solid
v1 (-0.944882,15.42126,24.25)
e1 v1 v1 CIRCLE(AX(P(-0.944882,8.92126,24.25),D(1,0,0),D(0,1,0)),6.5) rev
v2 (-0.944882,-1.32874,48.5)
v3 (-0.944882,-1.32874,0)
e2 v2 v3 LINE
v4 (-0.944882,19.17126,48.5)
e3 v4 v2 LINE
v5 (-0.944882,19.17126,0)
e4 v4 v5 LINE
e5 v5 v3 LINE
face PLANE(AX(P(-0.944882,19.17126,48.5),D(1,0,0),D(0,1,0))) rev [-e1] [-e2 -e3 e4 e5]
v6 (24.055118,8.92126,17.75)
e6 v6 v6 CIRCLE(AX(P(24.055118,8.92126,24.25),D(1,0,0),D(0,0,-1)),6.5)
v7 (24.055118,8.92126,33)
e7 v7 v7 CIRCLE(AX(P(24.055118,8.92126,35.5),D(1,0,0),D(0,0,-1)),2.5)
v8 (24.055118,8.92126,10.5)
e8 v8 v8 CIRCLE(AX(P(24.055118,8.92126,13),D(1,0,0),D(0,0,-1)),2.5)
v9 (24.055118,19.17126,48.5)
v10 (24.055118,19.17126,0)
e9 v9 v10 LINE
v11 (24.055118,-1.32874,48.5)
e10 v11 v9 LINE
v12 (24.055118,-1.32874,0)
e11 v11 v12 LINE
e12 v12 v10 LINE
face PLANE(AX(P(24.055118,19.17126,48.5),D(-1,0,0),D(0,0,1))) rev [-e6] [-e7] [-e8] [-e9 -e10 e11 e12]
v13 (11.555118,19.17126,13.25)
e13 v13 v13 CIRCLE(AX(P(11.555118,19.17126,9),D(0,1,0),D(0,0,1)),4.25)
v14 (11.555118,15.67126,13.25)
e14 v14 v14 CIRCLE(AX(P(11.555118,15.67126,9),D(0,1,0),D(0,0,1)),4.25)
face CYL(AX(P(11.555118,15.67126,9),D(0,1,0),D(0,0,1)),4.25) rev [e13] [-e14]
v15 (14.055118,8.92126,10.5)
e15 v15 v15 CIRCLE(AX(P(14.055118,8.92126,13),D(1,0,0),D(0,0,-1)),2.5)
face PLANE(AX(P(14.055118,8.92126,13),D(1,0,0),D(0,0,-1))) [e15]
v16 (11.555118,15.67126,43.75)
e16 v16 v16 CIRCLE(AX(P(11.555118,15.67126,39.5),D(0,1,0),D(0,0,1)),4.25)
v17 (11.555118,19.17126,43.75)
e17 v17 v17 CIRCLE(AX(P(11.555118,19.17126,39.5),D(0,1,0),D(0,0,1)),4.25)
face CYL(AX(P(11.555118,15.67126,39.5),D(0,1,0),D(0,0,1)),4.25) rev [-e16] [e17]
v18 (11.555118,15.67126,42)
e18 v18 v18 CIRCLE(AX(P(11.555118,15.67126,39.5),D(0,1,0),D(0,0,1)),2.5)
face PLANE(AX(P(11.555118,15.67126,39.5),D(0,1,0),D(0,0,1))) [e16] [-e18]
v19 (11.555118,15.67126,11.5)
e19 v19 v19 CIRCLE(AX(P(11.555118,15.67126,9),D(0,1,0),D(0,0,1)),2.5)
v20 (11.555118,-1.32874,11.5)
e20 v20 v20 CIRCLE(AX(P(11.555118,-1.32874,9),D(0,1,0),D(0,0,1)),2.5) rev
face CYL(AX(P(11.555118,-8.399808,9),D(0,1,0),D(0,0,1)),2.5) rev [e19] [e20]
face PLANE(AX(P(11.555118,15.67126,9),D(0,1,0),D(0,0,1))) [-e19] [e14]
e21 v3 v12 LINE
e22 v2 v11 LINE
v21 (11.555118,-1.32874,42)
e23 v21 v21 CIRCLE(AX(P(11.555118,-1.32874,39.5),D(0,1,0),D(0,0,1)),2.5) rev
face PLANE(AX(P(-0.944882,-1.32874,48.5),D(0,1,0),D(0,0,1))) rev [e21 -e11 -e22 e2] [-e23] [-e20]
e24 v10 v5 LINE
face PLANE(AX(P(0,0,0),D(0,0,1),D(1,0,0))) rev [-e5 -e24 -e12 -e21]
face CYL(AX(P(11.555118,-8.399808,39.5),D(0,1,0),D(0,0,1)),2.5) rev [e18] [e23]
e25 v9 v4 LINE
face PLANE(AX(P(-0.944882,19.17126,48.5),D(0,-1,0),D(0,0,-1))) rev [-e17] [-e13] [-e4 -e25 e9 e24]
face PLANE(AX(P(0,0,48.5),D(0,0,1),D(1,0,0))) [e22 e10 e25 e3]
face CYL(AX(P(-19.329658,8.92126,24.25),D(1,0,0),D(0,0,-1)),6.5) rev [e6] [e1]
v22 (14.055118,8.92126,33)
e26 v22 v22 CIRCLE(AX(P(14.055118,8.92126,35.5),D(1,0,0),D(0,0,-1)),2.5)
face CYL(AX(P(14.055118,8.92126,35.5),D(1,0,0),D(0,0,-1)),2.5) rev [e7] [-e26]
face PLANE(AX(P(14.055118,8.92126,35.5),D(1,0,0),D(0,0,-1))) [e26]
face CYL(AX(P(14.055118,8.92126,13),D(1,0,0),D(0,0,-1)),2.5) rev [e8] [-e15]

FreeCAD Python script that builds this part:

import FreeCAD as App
import Part
import Sketcher

V = App.Vector
Q = App.Units.Quantity


def add_polygon(sketch, points):
    """Adds a closed chain of lines whose ends are joined by coincident constraints."""
    first, n = sketch.GeometryCount, len(points)
    for a, b in zip(points, points[1:] + points[:1]):
        sketch.addGeometry(Part.LineSegment(App.Vector(*a, 0), App.Vector(*b, 0)), False)
    for i in range(n):
        sketch.addConstraint(Sketcher.Constraint("Coincident", first + i, 2, first + (i + 1) % n, 1))

doc = App.newDocument("Part")
body = doc.addObject("PartDesign::Body", "Body")

sketch1 = doc.addObject("Sketcher::SketchObject", "Sketch")
body.addObject(sketch1)
sketch1.AttachmentSupport = (doc.XY_Plane, [""])
sketch1.MapMode = "FlatFace"
add_polygon(sketch1, [(-1, 19), (-1, -1), (24, -1), (24, 19)])
sketch1.addConstraint([
    Sketcher.Constraint("Vertical", 0),
    Sketcher.Constraint("Horizontal", 1),
    Sketcher.Constraint("Vertical", 2),
    Sketcher.Constraint("Horizontal", 3),
    Sketcher.Constraint("DistanceX", 1, 1, 1, 2, Q("25 mm")),
    Sketcher.Constraint("DistanceY", 0, 2, 0, 1, Q("20.5 mm")),
    Sketcher.Constraint("DistanceX", 0, 2, -1, 1, Q("0.944882 mm")),
    Sketcher.Constraint("DistanceY", 0, 2, -1, 1, Q("1.32874 mm")),
])
pad1 = doc.addObject("PartDesign::Pad", "Pad")
body.addObject(pad1)
pad1.Profile = sketch1
pad1.Length = 48.5

sketch2 = doc.addObject("Sketcher::SketchObject", "Sketch001")
body.addObject(sketch2)
sketch2.AttachmentSupport = (doc.XZ_Plane, [""])
sketch2.MapMode = "FlatFace"
sketch2.AttachmentOffset = App.Placement(V(0, 0, -19.17126), App.Rotation())
sketch2.addGeometry([
    Part.Circle(V(11.6, 39.5, 0), V(0, 0, 1), 4.2),
    Part.Circle(V(11.6, 9, 0), V(0, 0, 1), 4.2),
], False)
sketch2.addConstraint([
    Sketcher.Constraint("Equal", 0, 1),
    Sketcher.Constraint("Vertical", 0, 3, 1, 3),
    Sketcher.Constraint("Diameter", 0, Q("8.5 mm")),
    Sketcher.Constraint("DistanceY", -1, 1, 1, 3, Q("9 mm")),
    Sketcher.Constraint("DistanceY", -1, 1, 0, 3, Q("39.5 mm")),
    Sketcher.Constraint("DistanceX", -1, 1, 0, 3, Q("11.555118 mm")),
])
pocket1 = doc.addObject("PartDesign::Pocket", "Pocket")
body.addObject(pocket1)
pocket1.Profile = sketch2
pocket1.Length = 3.5
pocket1.Reversed = True

sketch3 = doc.addObject("Sketcher::SketchObject", "Sketch002")
body.addObject(sketch3)
sketch3.AttachmentSupport = (doc.XZ_Plane, [""])
sketch3.MapMode = "FlatFace"
sketch3.AttachmentOffset = App.Placement(V(0, 0, -15.67126), App.Rotation())
sketch3.addGeometry([
    Part.Circle(V(11.6, 39.5, 0), V(0, 0, 1), 2.5),
    Part.Circle(V(11.6, 9, 0), V(0, 0, 1), 2.5),
], False)
sketch3.addConstraint([
    Sketcher.Constraint("Equal", 0, 1),
    Sketcher.Constraint("Vertical", 0, 3, 1, 3),
    Sketcher.Constraint("Diameter", 0, Q("5 mm")),
    Sketcher.Constraint("DistanceY", -1, 1, 1, 3, Q("9 mm")),
    Sketcher.Constraint("DistanceY", -1, 1, 0, 3, Q("39.5 mm")),
    Sketcher.Constraint("DistanceX", -1, 1, 0, 3, Q("11.555118 mm")),
])
pocket2 = doc.addObject("PartDesign::Pocket", "Pocket001")
body.addObject(pocket2)
pocket2.Profile = sketch3
pocket2.Length = 17
pocket2.Reversed = True

sketch4 = doc.addObject("Sketcher::SketchObject", "Sketch003")
body.addObject(sketch4)
sketch4.AttachmentSupport = (doc.YZ_Plane, [""])
sketch4.MapMode = "FlatFace"
sketch4.AttachmentOffset = App.Placement(V(0, 0, 24.055118), App.Rotation())
sketch4.addGeometry(Part.Circle(V(9, 24, 0), V(0, 0, 1), 6), False)
sketch4.addConstraint([
    Sketcher.Constraint("Diameter", 0, Q("13 mm")),
    Sketcher.Constraint("DistanceY", -1, 1, 0, 3, Q("24.25 mm")),
    Sketcher.Constraint("DistanceX", -1, 1, 0, 3, Q("8.92126 mm")),
])
pocket3 = doc.addObject("PartDesign::Pocket", "Pocket002")
body.addObject(pocket3)
pocket3.Profile = sketch4
pocket3.Length = 25

sketch5 = doc.addObject("Sketcher::SketchObject", "Sketch004")
body.addObject(sketch5)
sketch5.AttachmentSupport = (doc.YZ_Plane, [""])
sketch5.MapMode = "FlatFace"
sketch5.AttachmentOffset = App.Placement(V(0, 0, 24.055118), App.Rotation())
sketch5.addGeometry([
    Part.Circle(V(8.9, 13, 0), V(0, 0, 1), 2.5),
    Part.Circle(V(8.9, 35.5, 0), V(0, 0, 1), 2.5),
], False)
sketch5.addConstraint([
    Sketcher.Constraint("Equal", 0, 1),
    Sketcher.Constraint("Vertical", 0, 3, 1, 3),
    Sketcher.Constraint("Diameter", 0, Q("5 mm")),
    Sketcher.Constraint("DistanceY", -1, 1, 0, 3, Q("13 mm")),
    Sketcher.Constraint("DistanceY", -1, 1, 1, 3, Q("35.5 mm")),
    Sketcher.Constraint("DistanceX", -1, 1, 0, 3, Q("8.92126 mm")),
])
pocket4 = doc.addObject("PartDesign::Pocket", "Pocket003")
body.addObject(pocket4)
pocket4.Profile = sketch5
pocket4.Length = 10

doc.recompute()
